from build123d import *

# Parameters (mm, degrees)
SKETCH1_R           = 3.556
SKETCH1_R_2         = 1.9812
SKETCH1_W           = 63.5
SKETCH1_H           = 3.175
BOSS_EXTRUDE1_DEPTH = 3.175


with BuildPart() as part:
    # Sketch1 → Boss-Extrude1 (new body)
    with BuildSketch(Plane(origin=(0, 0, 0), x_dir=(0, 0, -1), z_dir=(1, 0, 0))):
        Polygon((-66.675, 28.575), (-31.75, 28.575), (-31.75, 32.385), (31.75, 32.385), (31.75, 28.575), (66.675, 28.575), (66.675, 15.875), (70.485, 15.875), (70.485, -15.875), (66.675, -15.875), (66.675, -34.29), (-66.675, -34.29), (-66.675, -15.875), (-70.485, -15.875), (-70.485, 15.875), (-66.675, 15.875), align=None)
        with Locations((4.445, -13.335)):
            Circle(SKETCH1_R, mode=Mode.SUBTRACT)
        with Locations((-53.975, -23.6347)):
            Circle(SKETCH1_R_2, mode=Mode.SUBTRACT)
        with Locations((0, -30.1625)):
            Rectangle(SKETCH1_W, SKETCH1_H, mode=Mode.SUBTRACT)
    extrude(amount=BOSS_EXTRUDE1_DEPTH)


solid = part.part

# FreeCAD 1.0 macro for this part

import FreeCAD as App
import Part
import Sketcher

V = App.Vector
Q = App.Units.Quantity

doc = App.newDocument("Part")
body = doc.addObject("PartDesign::Body", "Body")

sketch1 = body.newObject("Sketcher::SketchObject", "Sketch")
sketch1.AttachmentSupport = (doc.getObject("YZ_Plane"), [""])
sketch1.MapMode = "FlatFace"
sketch1.addGeometry([
    Part.LineSegment(V(28.6, 31.8, 0), V(28.6, 66.7, 0)),
    Part.LineSegment(V(28.6, 66.7, 0), V(15.9, 66.7, 0)),
    Part.LineSegment(V(15.9, 66.7, 0), V(15.9, 70.5, 0)),
    Part.LineSegment(V(15.9, 70.5, 0), V(-15.9, 70.5, 0)),
    Part.LineSegment(V(-15.9, 70.5, 0), V(-15.9, 66.7, 0)),
    Part.LineSegment(V(-15.9, 66.7, 0), V(-34.3, 66.7, 0)),
    Part.LineSegment(V(-34.3, 66.7, 0), V(-34.3, -66.7, 0)),
    Part.LineSegment(V(-34.3, -66.7, 0), V(-15.9, -66.7, 0)),
    Part.LineSegment(V(-15.9, -66.7, 0), V(-15.9, -70.5, 0)),
    Part.LineSegment(V(-15.9, -70.5, 0), V(15.9, -70.5, 0)),
    Part.LineSegment(V(15.9, -70.5, 0), V(15.9, -66.7, 0)),
    Part.LineSegment(V(15.9, -66.7, 0), V(28.6, -66.7, 0)),
    Part.LineSegment(V(28.6, -66.7, 0), V(28.6, -31.8, 0)),
    Part.LineSegment(V(28.6, -31.8, 0), V(32.4, -31.8, 0)),
    Part.LineSegment(V(32.4, -31.8, 0), V(32.4, 31.8, 0)),
    Part.LineSegment(V(32.4, 31.8, 0), V(28.6, 31.8, 0)),
    Part.LineSegment(V(-31.8, 31.8, 0), V(-28.6, 31.8, 0)),
    Part.LineSegment(V(-28.6, 31.8, 0), V(-28.6, -31.8, 0)),
    Part.LineSegment(V(-28.6, -31.8, 0), V(-31.8, -31.8, 0)),
    Part.LineSegment(V(-31.8, -31.8, 0), V(-31.8, 31.8, 0)),
    Part.Circle(V(-23.6, 54, 0), V(0, 0, 1), 2),
    Part.Circle(V(-13.3, -4.4, 0), V(0, 0, 1), 3.6),
], False)
sketch1.addConstraint([
    Sketcher.Constraint("Coincident", 0, 2, 1, 1),
    Sketcher.Constraint("Coincident", 1, 2, 2, 1),
    Sketcher.Constraint("Coincident", 2, 2, 3, 1),
    Sketcher.Constraint("Coincident", 3, 2, 4, 1),
    Sketcher.Constraint("Coincident", 4, 2, 5, 1),
    Sketcher.Constraint("Coincident", 5, 2, 6, 1),
    Sketcher.Constraint("Coincident", 6, 2, 7, 1),
    Sketcher.Constraint("Coincident", 7, 2, 8, 1),
    Sketcher.Constraint("Coincident", 8, 2, 9, 1),
    Sketcher.Constraint("Coincident", 9, 2, 10, 1),
    Sketcher.Constraint("Coincident", 10, 2, 11, 1),
    Sketcher.Constraint("Coincident", 11, 2, 12, 1),
    Sketcher.Constraint("Coincident", 12, 2, 13, 1),
    Sketcher.Constraint("Coincident", 13, 2, 14, 1),
    Sketcher.Constraint("Coincident", 14, 2, 15, 1),
    Sketcher.Constraint("Coincident", 15, 2, 0, 1),
    Sketcher.Constraint("Coincident", 16, 2, 17, 1),
    Sketcher.Constraint("Coincident", 17, 2, 18, 1),
    Sketcher.Constraint("Coincident", 18, 2, 19, 1),
    Sketcher.Constraint("Coincident", 19, 2, 16, 1),
    Sketcher.Constraint("Vertical", 0),
    Sketcher.Constraint("Horizontal", 1),
    Sketcher.Constraint("Vertical", 2),
    Sketcher.Constraint("Horizontal", 3),
    Sketcher.Constraint("Vertical", 4),
    Sketcher.Constraint("Horizontal", 5),
    Sketcher.Constraint("Vertical", 6),
    Sketcher.Constraint("Horizontal", 7),
    Sketcher.Constraint("Vertical", 8),
    Sketcher.Constraint("Horizontal", 9),
    Sketcher.Constraint("Vertical", 10),
    Sketcher.Constraint("Horizontal", 11),
    Sketcher.Constraint("Vertical", 12),
    Sketcher.Constraint("Horizontal", 13),
    Sketcher.Constraint("Vertical", 14),
    Sketcher.Constraint("Horizontal", 15),
    Sketcher.Constraint("Horizontal", 16),
    Sketcher.Constraint("Vertical", 17),
    Sketcher.Constraint("Horizontal", 18),
    Sketcher.Constraint("Vertical", 19),
    Sketcher.Constraint("Symmetric", 1, 2, 7, 2, -1, 1),
    Sketcher.Constraint("Symmetric", 3, 2, 9, 2, -1, 1),
    Sketcher.Constraint("Symmetric", 12, 2, 16, 2, -1, 1),
    Sketcher.Constraint("Symmetric", 15, 2, 17, 2, -1, 1),
    Sketcher.Constraint("Symmetric", 1, 2, 4, 2, -2),
    Sketcher.Constraint("Horizontal", 7, 2, 10, 2),
    Sketcher.Constraint("Horizontal", 15, 2, 16, 2),
    Sketcher.Constraint("Equal", 15, 2),
    Sketcher.Constraint("Diameter", 21, Q("0.28 in")),
    Sketcher.Constraint("Diameter", 20, Q("0.156 in")),
    Sketcher.Constraint("DistanceX", 1, 2, 1, 1, Q("0.5 in")),
    Sketcher.Constraint("DistanceY", 14, 1, 14, 2, Q("2.5 in")),
    Sketcher.Constraint("DistanceX", 3, 2, 3, 1, Q("1.25 in")),
    Sketcher.Constraint("DistanceX", 13, 1, 13, 2, Q("0.15 in")),
    Sketcher.Constraint("DistanceY", 6, 2, 6, 1, Q("5.25 in")),
    Sketcher.Constraint("DistanceY", 21, 3, 20, 3, Q("2.3 in")),
    Sketcher.Constraint("DistanceY", 20, 3, 0, 2, Q("0.5 in")),
    Sketcher.Constraint("DistanceX", 3, 2, 21, 3, Q("0.1 in")),
    Sketcher.Constraint("DistanceX", 6, 2, 18, 2, Q("0.1 in")),
    Sketcher.Constraint("DistanceX", 5, 2, 5, 1, Q("0.725 in")),
    Sketcher.Constraint("DistanceX", 20, 3, -1, 1, Q("0.9305 in")),
])
pad1 = body.newObject("PartDesign::Pad", "Pad")
pad1.Profile = sketch1
pad1.Length = Q("0.125 in")

doc.recompute()
